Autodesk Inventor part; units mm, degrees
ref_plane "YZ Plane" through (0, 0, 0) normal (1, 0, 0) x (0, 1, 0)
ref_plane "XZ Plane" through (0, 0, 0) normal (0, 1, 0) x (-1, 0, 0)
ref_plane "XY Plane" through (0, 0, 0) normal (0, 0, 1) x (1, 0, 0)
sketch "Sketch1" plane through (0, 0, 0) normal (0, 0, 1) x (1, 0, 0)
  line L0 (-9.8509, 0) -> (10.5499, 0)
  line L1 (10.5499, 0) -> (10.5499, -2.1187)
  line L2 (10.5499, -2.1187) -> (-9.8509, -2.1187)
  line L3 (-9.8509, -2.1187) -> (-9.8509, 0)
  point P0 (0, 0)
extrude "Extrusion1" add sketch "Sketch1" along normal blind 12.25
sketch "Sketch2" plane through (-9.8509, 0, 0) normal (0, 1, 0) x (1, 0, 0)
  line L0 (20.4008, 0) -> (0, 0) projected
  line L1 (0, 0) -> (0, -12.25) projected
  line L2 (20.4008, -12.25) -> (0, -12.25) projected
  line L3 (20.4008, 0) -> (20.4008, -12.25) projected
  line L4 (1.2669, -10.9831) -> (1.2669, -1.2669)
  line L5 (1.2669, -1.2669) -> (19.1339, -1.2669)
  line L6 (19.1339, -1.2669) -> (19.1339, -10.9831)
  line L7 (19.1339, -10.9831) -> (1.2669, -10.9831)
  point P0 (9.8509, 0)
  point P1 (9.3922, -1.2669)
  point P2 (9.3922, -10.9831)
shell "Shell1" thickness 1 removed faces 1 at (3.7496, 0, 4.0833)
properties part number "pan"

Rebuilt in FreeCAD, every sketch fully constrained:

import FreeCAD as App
import Part
import Sketcher

V = App.Vector


def faces_at(feature, points):
    """Names of the faces that lie closest to the given points."""
    faces = feature.Shape.Faces
    near = lambda p: min(range(len(faces)), key=lambda i: faces[i].distToShape(Part.Vertex(*p))[0])
    return sorted({f"Face{near(p) + 1}" for p in points})


def add_polygon(sketch, points):
    """Adds a closed chain of lines whose ends are joined by coincident constraints."""
    first, n = sketch.GeometryCount, len(points)
    for a, b in zip(points, points[1:] + points[:1]):
        sketch.addGeometry(Part.LineSegment(App.Vector(*a, 0), App.Vector(*b, 0)), False)
    for i in range(n):
        sketch.addConstraint(Sketcher.Constraint("Coincident", first + i, 2, first + (i + 1) % n, 1))

doc = App.newDocument("Part")
body = doc.addObject("PartDesign::Body", "Body")

# Sketch on XY plane
sketch1 = doc.addObject("Sketcher::SketchObject", "Sketch")
body.addObject(sketch1)
sketch1.AttachmentSupport = (doc.XY_Plane, [""])
sketch1.MapMode = "FlatFace"
add_polygon(sketch1, [(10.5, 0), (-9.9, 0), (-9.9, -2.1), (10.5, -2.1)])  # lines 0-3
sketch1.addConstraint([
    Sketcher.Constraint("Horizontal", 0),
    Sketcher.Constraint("Vertical", 1),
    Sketcher.Constraint("Horizontal", 2),
    Sketcher.Constraint("Vertical", 3),
    Sketcher.Constraint("PointOnObject", 0, 2, -1),
    Sketcher.Constraint("DistanceX", -1, 1, 2, 2, 10.55),
    Sketcher.Constraint("DistanceX", 0, 2, 0, 1, 20.4008),
    Sketcher.Constraint("DistanceY", 1, 2, 1, 1, 2.1187),
])
pad1 = doc.addObject("PartDesign::Pad", "Pad")
body.addObject(pad1)
pad1.Profile = sketch1
pad1.Length = 12.25
doc.recompute()

thickness = doc.addObject("PartDesign::Thickness", "Thickness")
body.addObject(thickness)
thickness.Base = (pad1, faces_at(pad1, [(3.75, 0, 4.083)]))
thickness.Value = 1
thickness.Reversed = True
thickness.Join = "Intersection"

doc.recompute()
